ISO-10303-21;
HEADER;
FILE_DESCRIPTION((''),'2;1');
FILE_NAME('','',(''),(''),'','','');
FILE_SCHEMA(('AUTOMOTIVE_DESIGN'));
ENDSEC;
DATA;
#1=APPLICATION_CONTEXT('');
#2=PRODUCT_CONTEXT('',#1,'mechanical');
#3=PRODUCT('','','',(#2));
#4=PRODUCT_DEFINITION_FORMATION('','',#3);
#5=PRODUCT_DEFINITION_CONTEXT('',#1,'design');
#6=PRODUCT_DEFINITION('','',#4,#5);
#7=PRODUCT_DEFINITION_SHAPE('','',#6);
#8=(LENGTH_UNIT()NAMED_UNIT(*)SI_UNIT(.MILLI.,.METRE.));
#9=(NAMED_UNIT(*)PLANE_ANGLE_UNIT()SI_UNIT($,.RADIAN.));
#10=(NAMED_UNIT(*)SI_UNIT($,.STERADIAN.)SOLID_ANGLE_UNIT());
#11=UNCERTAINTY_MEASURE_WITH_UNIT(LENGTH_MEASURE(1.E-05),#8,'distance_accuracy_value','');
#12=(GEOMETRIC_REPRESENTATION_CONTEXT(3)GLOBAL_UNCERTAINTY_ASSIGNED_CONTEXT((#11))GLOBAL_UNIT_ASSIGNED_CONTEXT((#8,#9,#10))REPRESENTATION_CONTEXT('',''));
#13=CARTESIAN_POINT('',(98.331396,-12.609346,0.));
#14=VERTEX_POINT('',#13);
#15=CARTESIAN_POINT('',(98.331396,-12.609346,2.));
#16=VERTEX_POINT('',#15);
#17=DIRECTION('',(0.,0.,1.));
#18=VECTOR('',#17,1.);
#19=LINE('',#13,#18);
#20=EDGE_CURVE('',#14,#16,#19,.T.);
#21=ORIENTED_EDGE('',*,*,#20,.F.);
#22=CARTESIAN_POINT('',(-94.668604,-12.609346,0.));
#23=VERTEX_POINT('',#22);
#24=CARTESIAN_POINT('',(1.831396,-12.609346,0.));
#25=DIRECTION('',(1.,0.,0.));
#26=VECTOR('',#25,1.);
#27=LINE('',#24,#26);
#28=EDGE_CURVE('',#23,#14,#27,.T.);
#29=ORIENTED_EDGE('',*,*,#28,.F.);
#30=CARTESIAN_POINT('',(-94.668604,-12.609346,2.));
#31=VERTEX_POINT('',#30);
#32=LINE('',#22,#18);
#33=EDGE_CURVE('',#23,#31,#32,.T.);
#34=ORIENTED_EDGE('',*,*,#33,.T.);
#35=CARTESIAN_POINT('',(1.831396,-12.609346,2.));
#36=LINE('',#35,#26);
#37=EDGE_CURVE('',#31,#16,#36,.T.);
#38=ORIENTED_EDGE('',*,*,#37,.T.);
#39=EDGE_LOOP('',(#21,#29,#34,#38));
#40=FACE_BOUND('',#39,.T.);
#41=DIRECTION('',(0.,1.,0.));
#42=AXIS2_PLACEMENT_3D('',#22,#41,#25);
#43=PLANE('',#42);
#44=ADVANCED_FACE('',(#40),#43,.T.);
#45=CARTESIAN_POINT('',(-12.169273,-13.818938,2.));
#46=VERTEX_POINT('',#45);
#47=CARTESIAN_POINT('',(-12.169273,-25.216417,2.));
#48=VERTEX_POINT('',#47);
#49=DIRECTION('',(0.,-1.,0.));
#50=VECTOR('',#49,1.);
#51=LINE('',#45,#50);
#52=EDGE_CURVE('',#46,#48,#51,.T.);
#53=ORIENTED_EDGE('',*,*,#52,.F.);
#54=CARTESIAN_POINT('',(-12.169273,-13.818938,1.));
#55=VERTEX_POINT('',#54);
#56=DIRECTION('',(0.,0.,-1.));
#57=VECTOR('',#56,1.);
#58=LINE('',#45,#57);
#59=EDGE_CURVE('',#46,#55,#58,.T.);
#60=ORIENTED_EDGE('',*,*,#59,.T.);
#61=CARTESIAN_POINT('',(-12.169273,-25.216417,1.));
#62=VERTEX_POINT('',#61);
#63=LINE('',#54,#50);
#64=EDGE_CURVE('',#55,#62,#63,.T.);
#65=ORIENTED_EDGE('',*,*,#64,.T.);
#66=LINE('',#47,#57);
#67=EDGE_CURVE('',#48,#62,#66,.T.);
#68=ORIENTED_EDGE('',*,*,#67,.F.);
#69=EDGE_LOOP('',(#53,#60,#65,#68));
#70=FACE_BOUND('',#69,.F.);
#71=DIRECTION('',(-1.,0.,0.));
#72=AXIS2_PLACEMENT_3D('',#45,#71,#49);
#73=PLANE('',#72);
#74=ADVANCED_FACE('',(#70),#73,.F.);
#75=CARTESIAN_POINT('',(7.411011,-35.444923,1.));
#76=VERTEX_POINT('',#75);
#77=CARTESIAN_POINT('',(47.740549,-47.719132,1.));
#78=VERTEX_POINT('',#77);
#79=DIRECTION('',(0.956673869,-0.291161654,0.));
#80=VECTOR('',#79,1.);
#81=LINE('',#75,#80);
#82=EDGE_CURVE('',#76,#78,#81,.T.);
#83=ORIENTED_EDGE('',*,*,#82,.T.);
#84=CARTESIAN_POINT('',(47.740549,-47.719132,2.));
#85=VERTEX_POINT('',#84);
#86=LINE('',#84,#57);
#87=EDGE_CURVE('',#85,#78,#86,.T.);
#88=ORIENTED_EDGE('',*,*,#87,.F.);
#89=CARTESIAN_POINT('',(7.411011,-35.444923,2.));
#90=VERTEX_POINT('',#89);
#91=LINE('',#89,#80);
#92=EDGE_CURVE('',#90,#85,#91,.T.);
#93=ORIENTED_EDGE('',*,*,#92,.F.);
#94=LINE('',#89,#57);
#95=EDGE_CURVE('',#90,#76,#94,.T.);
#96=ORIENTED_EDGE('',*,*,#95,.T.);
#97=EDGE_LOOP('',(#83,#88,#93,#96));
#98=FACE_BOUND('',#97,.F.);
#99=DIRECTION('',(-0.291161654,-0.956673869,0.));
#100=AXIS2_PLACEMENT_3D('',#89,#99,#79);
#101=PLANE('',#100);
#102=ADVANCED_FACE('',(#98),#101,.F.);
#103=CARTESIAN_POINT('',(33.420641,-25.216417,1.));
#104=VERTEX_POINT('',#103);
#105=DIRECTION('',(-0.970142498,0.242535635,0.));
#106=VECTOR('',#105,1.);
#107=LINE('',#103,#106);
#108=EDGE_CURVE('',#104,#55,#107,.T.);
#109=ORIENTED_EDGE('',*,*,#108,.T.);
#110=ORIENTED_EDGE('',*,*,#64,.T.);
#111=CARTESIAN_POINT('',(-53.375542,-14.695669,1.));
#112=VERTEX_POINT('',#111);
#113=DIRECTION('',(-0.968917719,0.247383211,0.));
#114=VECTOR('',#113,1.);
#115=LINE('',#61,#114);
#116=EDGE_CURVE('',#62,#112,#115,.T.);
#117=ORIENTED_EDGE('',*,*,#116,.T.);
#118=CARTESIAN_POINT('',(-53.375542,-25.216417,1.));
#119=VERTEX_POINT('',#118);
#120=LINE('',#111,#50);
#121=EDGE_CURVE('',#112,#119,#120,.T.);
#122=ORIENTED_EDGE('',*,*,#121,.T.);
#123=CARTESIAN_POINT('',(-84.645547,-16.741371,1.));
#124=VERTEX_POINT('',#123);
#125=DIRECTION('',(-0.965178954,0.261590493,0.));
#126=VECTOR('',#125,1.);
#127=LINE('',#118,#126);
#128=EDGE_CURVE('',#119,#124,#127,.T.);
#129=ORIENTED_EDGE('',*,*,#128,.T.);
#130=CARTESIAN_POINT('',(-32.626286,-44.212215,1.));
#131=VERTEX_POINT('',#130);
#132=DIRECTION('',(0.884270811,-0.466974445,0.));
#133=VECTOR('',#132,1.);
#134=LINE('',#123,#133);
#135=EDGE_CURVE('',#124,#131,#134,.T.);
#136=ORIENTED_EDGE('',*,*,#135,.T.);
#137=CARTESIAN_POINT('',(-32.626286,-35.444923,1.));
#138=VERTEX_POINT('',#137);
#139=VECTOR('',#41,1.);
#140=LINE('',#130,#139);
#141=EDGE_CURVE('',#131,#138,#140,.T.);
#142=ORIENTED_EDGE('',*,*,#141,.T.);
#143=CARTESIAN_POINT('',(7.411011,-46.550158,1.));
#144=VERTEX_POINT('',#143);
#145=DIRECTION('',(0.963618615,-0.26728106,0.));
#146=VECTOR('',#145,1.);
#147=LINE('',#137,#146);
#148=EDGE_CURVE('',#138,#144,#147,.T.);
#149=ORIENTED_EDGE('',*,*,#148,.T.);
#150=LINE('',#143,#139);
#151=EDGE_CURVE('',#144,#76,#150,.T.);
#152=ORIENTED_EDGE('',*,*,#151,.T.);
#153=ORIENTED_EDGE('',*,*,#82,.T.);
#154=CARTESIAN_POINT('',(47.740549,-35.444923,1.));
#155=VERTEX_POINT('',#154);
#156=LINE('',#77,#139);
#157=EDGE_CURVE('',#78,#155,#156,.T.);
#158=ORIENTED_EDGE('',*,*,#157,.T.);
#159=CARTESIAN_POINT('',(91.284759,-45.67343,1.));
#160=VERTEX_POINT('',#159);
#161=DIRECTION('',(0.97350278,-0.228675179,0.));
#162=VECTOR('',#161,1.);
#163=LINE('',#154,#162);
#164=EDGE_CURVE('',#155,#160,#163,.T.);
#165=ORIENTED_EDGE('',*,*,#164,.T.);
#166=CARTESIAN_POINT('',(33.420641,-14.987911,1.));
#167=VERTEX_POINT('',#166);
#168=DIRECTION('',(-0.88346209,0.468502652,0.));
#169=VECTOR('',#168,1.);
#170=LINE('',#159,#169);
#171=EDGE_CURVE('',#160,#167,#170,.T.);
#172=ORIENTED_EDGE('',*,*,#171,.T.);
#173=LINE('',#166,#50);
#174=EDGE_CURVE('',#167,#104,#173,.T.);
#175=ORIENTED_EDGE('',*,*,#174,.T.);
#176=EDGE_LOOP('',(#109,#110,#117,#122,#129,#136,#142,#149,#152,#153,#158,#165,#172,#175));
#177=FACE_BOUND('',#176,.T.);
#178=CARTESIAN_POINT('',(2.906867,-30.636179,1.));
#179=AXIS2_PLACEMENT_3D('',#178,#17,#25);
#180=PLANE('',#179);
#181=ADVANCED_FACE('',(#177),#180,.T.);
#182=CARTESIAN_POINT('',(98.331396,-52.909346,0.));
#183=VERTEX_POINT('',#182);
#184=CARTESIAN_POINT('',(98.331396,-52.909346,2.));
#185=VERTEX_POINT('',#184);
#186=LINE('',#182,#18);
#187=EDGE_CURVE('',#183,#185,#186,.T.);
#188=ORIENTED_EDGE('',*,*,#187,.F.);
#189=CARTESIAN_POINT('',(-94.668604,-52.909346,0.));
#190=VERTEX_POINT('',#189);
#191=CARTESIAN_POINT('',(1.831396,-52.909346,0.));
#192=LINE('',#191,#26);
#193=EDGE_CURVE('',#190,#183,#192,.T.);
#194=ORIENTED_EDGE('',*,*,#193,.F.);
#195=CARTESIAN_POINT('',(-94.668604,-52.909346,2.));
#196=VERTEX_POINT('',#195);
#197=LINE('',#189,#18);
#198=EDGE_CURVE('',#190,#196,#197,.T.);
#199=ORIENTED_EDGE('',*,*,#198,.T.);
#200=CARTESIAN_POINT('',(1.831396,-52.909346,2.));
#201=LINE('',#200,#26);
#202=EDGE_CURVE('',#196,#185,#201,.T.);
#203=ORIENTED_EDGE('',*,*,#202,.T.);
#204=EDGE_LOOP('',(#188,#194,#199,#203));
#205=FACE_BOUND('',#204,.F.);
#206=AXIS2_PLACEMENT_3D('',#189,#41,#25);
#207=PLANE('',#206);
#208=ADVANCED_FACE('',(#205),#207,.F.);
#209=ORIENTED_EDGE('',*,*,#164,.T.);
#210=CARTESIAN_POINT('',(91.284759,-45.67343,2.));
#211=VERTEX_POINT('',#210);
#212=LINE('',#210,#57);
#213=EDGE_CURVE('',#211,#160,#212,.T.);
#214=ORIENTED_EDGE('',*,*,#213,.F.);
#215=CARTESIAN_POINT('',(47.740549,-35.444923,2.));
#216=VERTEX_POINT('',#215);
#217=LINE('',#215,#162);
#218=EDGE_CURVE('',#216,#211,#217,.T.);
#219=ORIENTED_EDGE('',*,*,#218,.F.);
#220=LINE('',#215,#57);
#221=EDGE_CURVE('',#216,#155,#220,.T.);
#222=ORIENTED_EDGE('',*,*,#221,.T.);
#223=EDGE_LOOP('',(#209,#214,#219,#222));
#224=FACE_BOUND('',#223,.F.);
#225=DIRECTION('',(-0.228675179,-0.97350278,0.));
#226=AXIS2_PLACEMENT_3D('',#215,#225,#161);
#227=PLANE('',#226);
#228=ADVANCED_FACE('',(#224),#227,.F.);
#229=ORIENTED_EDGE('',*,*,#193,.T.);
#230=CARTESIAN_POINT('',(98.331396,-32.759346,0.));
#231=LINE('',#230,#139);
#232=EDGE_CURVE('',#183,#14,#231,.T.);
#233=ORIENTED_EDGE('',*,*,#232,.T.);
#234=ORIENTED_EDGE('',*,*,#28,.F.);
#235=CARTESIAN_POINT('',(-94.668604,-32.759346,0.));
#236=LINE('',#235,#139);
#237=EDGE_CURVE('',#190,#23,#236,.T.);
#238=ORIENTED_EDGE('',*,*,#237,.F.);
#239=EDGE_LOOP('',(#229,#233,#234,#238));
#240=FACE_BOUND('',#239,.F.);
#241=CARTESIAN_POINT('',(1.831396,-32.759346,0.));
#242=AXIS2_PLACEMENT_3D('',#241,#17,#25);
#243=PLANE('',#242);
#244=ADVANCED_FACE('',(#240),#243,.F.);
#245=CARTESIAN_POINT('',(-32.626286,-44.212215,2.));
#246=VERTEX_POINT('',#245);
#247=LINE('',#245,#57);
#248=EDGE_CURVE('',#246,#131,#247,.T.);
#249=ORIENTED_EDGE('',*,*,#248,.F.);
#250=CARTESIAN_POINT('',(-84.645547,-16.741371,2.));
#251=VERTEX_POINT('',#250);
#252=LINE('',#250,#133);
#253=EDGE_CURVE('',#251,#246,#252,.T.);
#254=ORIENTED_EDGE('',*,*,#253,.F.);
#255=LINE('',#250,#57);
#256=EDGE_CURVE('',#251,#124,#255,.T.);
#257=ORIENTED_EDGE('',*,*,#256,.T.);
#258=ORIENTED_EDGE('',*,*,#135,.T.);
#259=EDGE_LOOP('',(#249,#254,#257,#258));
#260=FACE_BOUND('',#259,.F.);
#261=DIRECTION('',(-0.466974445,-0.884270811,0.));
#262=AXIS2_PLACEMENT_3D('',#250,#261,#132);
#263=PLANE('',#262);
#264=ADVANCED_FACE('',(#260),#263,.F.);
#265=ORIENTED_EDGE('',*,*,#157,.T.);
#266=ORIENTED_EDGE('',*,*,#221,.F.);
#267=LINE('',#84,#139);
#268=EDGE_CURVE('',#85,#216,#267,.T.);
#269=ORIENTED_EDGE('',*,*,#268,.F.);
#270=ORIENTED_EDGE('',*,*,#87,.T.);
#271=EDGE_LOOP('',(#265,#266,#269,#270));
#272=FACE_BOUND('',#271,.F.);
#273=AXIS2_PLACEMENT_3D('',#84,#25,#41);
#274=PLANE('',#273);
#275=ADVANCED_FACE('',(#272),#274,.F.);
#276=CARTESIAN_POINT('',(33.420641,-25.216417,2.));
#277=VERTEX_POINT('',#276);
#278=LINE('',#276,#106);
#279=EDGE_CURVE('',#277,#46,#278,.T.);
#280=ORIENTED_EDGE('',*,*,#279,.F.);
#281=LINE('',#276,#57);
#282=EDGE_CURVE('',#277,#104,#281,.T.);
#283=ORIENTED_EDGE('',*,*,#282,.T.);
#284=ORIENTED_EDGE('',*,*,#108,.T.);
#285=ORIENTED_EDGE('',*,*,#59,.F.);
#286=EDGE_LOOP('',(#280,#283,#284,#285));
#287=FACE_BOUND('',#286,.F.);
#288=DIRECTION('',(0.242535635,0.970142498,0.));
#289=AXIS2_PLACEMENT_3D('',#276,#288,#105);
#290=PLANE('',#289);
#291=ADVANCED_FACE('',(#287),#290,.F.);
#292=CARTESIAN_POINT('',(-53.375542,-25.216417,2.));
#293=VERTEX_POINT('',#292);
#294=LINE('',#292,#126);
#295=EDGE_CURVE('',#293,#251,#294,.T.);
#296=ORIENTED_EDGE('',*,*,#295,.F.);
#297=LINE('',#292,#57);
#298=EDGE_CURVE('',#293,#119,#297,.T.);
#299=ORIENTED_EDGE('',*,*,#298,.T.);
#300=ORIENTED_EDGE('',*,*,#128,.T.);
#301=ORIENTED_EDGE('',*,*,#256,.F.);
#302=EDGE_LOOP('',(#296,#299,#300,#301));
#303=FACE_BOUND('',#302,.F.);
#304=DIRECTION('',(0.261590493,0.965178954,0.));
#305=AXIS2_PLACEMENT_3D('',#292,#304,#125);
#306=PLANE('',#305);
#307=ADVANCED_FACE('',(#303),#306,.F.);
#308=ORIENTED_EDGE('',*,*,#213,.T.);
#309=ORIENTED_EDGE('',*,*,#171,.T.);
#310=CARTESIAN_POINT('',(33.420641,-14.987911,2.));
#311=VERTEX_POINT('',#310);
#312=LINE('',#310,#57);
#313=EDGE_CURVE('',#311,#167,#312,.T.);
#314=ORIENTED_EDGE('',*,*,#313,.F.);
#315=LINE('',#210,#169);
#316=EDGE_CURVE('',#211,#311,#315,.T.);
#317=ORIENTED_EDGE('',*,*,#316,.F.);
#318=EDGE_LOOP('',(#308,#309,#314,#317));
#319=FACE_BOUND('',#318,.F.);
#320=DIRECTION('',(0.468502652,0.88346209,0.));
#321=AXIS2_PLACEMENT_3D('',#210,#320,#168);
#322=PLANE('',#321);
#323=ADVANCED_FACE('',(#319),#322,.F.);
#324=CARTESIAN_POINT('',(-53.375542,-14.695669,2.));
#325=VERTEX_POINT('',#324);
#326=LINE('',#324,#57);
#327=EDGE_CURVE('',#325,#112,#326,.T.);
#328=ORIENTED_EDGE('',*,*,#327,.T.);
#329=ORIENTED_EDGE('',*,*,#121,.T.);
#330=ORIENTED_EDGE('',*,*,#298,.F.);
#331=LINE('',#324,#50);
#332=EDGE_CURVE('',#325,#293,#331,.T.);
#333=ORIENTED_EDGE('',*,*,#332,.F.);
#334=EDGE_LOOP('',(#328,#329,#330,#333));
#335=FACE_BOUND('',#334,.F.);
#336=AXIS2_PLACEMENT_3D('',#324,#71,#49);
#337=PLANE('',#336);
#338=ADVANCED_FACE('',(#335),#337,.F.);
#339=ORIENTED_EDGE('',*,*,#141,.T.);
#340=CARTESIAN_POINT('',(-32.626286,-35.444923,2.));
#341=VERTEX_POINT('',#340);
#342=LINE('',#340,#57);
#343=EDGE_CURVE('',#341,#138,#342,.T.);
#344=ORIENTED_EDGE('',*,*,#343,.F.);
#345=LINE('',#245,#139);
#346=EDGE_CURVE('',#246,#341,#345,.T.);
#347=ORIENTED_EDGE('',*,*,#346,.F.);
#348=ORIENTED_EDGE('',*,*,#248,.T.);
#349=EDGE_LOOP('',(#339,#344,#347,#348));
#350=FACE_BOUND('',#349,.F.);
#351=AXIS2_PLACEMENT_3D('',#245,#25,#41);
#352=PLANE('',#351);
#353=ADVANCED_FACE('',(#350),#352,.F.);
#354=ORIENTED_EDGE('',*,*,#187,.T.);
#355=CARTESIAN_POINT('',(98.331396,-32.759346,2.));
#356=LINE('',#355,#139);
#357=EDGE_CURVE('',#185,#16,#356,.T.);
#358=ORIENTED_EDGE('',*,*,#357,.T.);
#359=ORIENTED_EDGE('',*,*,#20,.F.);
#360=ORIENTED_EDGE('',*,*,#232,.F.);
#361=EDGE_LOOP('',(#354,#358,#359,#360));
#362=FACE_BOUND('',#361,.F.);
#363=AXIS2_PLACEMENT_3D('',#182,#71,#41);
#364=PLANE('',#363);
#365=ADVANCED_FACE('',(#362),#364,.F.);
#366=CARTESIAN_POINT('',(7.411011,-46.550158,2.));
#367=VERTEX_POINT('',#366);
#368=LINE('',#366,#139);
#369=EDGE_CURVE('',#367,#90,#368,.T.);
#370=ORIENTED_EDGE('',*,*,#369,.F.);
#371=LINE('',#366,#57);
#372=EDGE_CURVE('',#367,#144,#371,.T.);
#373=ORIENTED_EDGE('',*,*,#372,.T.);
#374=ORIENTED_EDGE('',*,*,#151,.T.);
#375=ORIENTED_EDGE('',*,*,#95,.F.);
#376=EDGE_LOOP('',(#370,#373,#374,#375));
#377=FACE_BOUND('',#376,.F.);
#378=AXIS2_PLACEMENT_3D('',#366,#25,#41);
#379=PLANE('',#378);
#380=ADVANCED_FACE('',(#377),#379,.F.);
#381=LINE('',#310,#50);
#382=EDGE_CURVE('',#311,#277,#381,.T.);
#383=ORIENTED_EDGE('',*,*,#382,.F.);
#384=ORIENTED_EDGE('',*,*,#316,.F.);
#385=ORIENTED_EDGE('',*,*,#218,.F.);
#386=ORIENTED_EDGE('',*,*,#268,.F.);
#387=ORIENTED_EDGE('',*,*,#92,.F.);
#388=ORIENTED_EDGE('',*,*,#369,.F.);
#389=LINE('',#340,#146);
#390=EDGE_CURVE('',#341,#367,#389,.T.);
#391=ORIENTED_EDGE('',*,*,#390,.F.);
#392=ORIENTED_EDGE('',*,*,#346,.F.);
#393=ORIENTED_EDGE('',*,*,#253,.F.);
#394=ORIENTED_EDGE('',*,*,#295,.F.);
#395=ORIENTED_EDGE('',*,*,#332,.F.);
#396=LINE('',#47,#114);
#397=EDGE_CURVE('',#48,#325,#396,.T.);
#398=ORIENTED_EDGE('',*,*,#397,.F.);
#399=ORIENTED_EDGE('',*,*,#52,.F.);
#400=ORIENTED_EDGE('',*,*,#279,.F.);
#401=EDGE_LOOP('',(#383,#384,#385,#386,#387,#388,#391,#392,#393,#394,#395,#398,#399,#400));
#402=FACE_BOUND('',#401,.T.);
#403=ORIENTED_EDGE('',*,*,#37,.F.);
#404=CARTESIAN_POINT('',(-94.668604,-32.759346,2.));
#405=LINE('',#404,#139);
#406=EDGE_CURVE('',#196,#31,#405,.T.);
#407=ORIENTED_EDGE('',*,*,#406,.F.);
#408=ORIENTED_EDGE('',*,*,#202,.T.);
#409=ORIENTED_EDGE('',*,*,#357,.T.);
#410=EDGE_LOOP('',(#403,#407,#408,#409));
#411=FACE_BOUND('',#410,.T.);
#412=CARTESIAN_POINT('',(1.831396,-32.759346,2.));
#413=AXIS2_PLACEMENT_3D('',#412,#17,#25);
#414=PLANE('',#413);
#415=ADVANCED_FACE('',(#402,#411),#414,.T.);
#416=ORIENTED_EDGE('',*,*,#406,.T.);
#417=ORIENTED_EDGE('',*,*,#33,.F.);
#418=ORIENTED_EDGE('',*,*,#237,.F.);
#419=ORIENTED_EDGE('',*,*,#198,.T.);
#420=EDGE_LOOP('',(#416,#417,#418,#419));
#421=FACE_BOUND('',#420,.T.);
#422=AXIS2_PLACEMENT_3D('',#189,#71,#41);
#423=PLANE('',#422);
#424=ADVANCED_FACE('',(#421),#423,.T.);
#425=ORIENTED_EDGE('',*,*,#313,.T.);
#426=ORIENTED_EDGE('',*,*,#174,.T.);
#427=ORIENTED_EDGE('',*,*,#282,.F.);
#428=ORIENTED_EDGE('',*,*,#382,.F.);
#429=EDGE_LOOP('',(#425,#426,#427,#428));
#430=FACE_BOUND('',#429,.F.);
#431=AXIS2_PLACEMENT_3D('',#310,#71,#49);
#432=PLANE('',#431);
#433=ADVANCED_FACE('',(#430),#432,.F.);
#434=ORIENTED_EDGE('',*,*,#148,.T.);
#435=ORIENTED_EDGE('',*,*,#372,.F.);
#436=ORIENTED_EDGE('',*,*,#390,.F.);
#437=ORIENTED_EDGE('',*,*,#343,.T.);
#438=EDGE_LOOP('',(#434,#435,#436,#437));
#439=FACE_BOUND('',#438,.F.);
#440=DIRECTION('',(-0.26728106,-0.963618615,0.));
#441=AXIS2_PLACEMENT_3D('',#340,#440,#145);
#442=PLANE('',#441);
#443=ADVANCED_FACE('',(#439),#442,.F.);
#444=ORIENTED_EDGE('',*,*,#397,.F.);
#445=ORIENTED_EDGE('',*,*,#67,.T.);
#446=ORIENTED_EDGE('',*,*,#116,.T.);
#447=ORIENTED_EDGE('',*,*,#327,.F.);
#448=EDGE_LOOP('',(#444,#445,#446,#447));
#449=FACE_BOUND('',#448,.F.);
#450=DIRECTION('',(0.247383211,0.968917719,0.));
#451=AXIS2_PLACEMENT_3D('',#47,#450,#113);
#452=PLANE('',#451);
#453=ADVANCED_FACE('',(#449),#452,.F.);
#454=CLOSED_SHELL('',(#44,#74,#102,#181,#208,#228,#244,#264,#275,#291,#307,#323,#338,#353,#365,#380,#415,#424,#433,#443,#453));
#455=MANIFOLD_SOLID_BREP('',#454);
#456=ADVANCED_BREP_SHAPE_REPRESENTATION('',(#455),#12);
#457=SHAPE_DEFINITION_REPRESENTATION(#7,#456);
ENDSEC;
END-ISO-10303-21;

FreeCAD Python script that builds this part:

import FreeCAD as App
import Part
import Sketcher

V = App.Vector

doc = App.newDocument("Part")
body = doc.addObject("PartDesign::Body", "Body")

sketch1 = body.newObject("Sketcher::SketchObject", "Sketch")
sketch1.AttachmentSupport = (doc.getObject("XY_Plane"), [""])
sketch1.MapMode = "FlatFace"
sketch1.addGeometry([
    Part.LineSegment(V(-95, -13, 0), V(-95, -53, 0)),
    Part.LineSegment(V(-95, -53, 0), V(98, -53, 0)),
    Part.LineSegment(V(98, -53, 0), V(98, -13, 0)),
    Part.LineSegment(V(98, -13, 0), V(-95, -13, 0)),
], False)
sketch1.addConstraint([
    Sketcher.Constraint("Coincident", 0, 2, 1, 1),
    Sketcher.Constraint("Coincident", 1, 2, 2, 1),
    Sketcher.Constraint("Coincident", 2, 2, 3, 1),
    Sketcher.Constraint("Coincident", 3, 2, 0, 1),
    Sketcher.Constraint("Vertical", 0),
    Sketcher.Constraint("Horizontal", 1),
    Sketcher.Constraint("Vertical", 2),
    Sketcher.Constraint("Horizontal", 3),
    Sketcher.Constraint("DistanceX", 1, 1, 1, 2, 193.0),
    Sketcher.Constraint("DistanceY", 0, 2, 0, 1, 40.3),
    Sketcher.Constraint("DistanceX", 0, 2, -1, 1, 94.668604),
    Sketcher.Constraint("DistanceY", 0, 2, -1, 1, 52.909346),
])
pad1 = body.newObject("PartDesign::Pad", "Pad")
pad1.Profile = sketch1
pad1.Length = 2

sketch2 = body.newObject("Sketcher::SketchObject", "Sketch001")
sketch2.AttachmentSupport = (doc.getObject("XY_Plane"), [""])
sketch2.MapMode = "FlatFace"
sketch2.AttachmentOffset = App.Placement(V(0, 0, 2), App.Rotation())
sketch2.addGeometry([
    Part.LineSegment(V(-53, -25, 0), V(-85, -17, 0)),
    Part.LineSegment(V(-85, -17, 0), V(-33, -44, 0)),
    Part.LineSegment(V(-33, -44, 0), V(-33, -35, 0)),
    Part.LineSegment(V(-33, -35, 0), V(7, -47, 0)),
    Part.LineSegment(V(7, -47, 0), V(7, -35, 0)),
    Part.LineSegment(V(7, -35, 0), V(48, -48, 0)),
    Part.LineSegment(V(48, -48, 0), V(48, -35, 0)),
    Part.LineSegment(V(48, -35, 0), V(91, -46, 0)),
    Part.LineSegment(V(91, -46, 0), V(33, -15, 0)),
    Part.LineSegment(V(33, -15, 0), V(33, -25, 0)),
    Part.LineSegment(V(33, -25, 0), V(-12, -14, 0)),
    Part.LineSegment(V(-12, -14, 0), V(-12, -25, 0)),
    Part.LineSegment(V(-12, -25, 0), V(-53, -15, 0)),
    Part.LineSegment(V(-53, -15, 0), V(-53, -25, 0)),
], False)
sketch2.addConstraint([
    Sketcher.Constraint("Coincident", 0, 2, 1, 1),
    Sketcher.Constraint("Coincident", 1, 2, 2, 1),
    Sketcher.Constraint("Coincident", 2, 2, 3, 1),
    Sketcher.Constraint("Coincident", 3, 2, 4, 1),
    Sketcher.Constraint("Coincident", 4, 2, 5, 1),
    Sketcher.Constraint("Coincident", 5, 2, 6, 1),
    Sketcher.Constraint("Coincident", 6, 2, 7, 1),
    Sketcher.Constraint("Coincident", 7, 2, 8, 1),
    Sketcher.Constraint("Coincident", 8, 2, 9, 1),
    Sketcher.Constraint("Coincident", 9, 2, 10, 1),
    Sketcher.Constraint("Coincident", 10, 2, 11, 1),
    Sketcher.Constraint("Coincident", 11, 2, 12, 1),
    Sketcher.Constraint("Coincident", 12, 2, 13, 1),
    Sketcher.Constraint("Coincident", 13, 2, 0, 1),
    Sketcher.Constraint("Vertical", 2),
    Sketcher.Constraint("Vertical", 4),
    Sketcher.Constraint("Vertical", 6),
    Sketcher.Constraint("Vertical", 9),
    Sketcher.Constraint("Vertical", 11),
    Sketcher.Constraint("Vertical", 13),
    Sketcher.Constraint("Horizontal", 2, 2, 4, 2),
    Sketcher.Constraint("Horizontal", 4, 2, 6, 2),
    Sketcher.Constraint("Horizontal", 9, 2, 11, 2),
    Sketcher.Constraint("Horizontal", 11, 2, 13, 2),
    Sketcher.Constraint("Distance", 8, 65.497002),
    Sketcher.Constraint("DistanceY", 2, 1, 2, 2, 8.767292),
    Sketcher.Constraint("DistanceY", 6, 1, 6, 2, 12.274209),
    Sketcher.Constraint("DistanceY", 11, 2, 11, 1, 11.397479),
    Sketcher.Constraint("DistanceY", 5, 2, 7, 2, 2.045702),
    Sketcher.Constraint("DistanceY", 1, 2, 11, 2, 18.995798),
    Sketcher.Constraint("Distance", 12, 42.528141),
    Sketcher.Constraint("DistanceY", 4, 1, 4, 2, 11.105235),
    Sketcher.Constraint("DistanceY", 9, 2, 9, 1, 10.228506),
    Sketcher.Constraint("DistanceY", 13, 2, 13, 1, 10.520748),
    Sketcher.Constraint("DistanceY", 0, 2, -1, 1, 16.741371),
    Sketcher.Constraint("DistanceX", -1, 1, 3, 2, 7.411011),
    Sketcher.Constraint("DistanceY", 3, 2, -1, 1, 46.550158),
    Sketcher.Constraint("DistanceX", -1, 1, 5, 2, 47.740549),
    Sketcher.Constraint("DistanceX", -1, 1, 7, 2, 91.284759),
    Sketcher.Constraint("DistanceX", 0, 2, 1, 2, 52.019261),
    Sketcher.Constraint("Distance", 0, 32.398142),
    Sketcher.Constraint("Distance", 3, 41.548904),
])
pocket1 = body.newObject("PartDesign::Pocket", "Pocket")
pocket1.Profile = sketch2
pocket1.Length = 1

doc.recompute()
